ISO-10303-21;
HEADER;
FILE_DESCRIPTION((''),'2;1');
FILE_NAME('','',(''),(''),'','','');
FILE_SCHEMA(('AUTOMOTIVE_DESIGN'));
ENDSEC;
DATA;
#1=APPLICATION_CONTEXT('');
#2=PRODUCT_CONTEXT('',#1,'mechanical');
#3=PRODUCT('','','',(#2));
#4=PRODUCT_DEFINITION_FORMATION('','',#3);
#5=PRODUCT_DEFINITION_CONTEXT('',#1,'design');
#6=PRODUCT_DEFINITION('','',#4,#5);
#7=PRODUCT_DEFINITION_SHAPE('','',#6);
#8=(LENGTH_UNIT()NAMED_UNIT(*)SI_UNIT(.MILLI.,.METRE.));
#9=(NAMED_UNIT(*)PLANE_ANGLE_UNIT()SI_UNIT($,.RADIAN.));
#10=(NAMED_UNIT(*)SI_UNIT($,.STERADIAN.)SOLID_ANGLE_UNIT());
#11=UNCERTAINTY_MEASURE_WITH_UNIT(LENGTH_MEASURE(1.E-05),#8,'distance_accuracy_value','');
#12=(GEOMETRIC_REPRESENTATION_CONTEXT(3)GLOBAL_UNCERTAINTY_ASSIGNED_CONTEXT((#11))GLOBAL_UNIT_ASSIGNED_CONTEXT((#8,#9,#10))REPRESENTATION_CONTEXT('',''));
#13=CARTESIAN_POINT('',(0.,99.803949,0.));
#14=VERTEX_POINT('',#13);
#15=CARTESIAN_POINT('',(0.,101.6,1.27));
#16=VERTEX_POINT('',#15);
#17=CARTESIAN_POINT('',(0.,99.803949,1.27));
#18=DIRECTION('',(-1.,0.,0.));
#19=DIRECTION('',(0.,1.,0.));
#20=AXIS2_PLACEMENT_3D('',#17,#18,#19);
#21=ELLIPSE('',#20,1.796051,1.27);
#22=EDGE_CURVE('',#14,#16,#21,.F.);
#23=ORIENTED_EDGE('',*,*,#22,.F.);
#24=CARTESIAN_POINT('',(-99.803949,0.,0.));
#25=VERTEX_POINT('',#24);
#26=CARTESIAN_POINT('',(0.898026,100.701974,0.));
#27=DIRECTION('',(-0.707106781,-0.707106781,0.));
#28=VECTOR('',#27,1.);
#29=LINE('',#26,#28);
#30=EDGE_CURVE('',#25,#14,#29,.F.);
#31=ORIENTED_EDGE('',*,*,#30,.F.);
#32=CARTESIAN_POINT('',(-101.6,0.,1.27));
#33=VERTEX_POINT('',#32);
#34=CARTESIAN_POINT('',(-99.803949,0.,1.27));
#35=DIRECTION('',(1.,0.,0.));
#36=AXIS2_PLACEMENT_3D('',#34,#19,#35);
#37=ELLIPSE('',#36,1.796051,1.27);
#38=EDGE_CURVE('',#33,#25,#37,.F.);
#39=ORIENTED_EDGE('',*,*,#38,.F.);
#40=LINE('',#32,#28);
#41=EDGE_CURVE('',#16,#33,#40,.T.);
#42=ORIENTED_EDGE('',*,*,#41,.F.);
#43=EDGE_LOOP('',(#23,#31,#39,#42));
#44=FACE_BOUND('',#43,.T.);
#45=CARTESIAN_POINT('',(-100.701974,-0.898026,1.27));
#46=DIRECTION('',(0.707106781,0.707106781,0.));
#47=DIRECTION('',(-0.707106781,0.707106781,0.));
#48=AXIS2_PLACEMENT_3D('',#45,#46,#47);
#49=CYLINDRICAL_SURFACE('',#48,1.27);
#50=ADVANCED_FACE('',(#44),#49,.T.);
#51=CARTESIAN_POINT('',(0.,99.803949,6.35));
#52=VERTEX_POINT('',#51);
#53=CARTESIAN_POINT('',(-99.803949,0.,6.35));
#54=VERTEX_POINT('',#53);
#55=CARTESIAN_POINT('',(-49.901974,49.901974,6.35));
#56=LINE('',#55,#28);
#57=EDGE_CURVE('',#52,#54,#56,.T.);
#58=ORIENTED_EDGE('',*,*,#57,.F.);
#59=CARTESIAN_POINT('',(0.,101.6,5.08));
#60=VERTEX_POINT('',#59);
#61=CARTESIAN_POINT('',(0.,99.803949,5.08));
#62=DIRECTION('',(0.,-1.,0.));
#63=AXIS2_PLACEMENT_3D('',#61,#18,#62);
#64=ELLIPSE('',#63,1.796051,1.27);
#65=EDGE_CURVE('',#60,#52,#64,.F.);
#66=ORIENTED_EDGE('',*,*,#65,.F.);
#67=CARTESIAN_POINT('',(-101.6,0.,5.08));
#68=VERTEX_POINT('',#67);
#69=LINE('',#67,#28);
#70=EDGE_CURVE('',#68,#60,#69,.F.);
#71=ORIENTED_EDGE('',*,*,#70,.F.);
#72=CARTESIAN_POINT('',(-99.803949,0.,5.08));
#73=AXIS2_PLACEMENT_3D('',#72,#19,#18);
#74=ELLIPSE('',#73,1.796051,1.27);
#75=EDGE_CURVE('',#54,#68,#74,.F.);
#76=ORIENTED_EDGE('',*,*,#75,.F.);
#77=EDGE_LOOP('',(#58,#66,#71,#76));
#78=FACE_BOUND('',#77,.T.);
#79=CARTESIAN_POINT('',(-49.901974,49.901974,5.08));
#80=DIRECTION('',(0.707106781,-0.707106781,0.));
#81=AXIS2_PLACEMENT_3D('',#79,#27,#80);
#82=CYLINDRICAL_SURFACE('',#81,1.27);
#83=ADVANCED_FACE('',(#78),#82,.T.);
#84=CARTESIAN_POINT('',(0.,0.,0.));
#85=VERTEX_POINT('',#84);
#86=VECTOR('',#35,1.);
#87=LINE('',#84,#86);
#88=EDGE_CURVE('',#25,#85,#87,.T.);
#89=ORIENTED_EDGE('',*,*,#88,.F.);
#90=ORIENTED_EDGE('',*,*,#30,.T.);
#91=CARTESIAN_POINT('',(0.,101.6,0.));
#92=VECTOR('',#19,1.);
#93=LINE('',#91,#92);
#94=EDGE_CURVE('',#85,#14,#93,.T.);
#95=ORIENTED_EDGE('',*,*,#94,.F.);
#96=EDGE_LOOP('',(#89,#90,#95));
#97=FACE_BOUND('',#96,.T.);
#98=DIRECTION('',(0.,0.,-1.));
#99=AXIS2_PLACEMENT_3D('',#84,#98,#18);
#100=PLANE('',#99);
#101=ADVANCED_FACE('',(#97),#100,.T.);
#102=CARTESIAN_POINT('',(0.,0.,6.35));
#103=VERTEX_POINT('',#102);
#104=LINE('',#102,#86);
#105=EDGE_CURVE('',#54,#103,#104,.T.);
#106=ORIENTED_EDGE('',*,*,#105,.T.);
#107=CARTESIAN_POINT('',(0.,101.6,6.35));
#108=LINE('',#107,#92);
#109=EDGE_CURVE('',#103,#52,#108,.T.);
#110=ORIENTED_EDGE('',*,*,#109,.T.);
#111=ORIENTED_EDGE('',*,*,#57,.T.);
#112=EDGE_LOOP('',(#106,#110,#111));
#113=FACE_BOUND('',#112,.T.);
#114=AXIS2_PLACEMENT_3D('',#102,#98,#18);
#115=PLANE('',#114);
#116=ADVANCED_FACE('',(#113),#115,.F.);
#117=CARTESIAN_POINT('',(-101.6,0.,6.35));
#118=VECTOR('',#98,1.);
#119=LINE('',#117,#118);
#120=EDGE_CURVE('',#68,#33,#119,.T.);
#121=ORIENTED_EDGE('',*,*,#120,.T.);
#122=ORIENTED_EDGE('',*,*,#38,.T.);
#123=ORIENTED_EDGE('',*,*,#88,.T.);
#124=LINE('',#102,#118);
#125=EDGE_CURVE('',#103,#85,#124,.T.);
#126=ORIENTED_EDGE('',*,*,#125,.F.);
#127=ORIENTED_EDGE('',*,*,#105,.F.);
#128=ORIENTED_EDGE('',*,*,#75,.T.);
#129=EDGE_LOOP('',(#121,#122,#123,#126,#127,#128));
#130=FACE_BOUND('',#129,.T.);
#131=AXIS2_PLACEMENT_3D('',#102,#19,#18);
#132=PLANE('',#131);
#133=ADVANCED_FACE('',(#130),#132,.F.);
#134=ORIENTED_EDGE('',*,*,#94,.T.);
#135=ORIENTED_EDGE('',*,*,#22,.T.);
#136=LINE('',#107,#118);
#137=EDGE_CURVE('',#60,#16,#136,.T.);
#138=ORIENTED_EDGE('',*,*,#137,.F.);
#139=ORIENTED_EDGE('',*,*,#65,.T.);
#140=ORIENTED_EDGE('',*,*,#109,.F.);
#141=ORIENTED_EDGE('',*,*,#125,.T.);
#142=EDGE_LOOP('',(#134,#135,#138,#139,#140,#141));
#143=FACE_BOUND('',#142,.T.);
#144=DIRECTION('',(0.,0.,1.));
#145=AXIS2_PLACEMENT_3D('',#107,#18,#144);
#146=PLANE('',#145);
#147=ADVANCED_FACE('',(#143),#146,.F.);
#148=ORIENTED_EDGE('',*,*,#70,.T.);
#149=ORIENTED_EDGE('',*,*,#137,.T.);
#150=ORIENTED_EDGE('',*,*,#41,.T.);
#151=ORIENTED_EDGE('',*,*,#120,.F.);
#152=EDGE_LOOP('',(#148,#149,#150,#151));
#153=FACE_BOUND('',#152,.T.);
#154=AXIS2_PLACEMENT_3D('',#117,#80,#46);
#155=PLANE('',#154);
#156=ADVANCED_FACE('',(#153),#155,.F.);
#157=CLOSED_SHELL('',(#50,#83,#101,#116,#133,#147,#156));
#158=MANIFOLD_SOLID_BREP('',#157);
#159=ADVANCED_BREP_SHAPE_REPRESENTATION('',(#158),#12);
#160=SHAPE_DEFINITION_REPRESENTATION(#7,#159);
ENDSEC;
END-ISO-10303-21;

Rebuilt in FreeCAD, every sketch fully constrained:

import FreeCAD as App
import Part
import Sketcher

V = App.Vector
Q = App.Units.Quantity


def edges_at(feature, points):
    """Names of the edges that pass closest to the given points."""
    edges = feature.Shape.Edges
    near = lambda p: min(range(len(edges)), key=lambda i: edges[i].distToShape(Part.Vertex(*p))[0])
    return sorted({f"Edge{near(p) + 1}" for p in points})

doc = App.newDocument("Part")
body = doc.addObject("PartDesign::Body", "Body")

sketch1 = doc.addObject("Sketcher::SketchObject", "Sketch")
body.addObject(sketch1)
sketch1.AttachmentSupport = (doc.XY_Plane, [""])
sketch1.MapMode = "FlatFace"
sketch1.addGeometry([
    Part.LineSegment(V(-102, 0, 0), V(0, 0, 0)),
    Part.LineSegment(V(0, 0, 0), V(0, 102, 0)),
    Part.LineSegment(V(0, 102, 0), V(-102, 0, 0)),
], False)
sketch1.addConstraint([
    Sketcher.Constraint("Coincident", 0, 2, 1, 1),
    Sketcher.Constraint("Coincident", 1, 2, 2, 1),
    Sketcher.Constraint("Coincident", 2, 2, 0, 1),
    Sketcher.Constraint("Horizontal", 0),
    Sketcher.Constraint("Vertical", 1),
    Sketcher.Constraint("Coincident", 0, 2, -1, 1),
    Sketcher.Constraint("Equal", 0, 1),
    Sketcher.Constraint("DistanceX", 0, 1, 0, 2, Q("4 in")),
])
pad1 = doc.addObject("PartDesign::Pad", "Pad")
body.addObject(pad1)
pad1.Profile = sketch1
pad1.Length = Q("0.25 in")
doc.recompute()

fillet = doc.addObject("PartDesign::Fillet", "Fillet")
body.addObject(fillet)
fillet.Base = (pad1, edges_at(pad1, [(-50.8, 50.8, 6.35)]))
fillet.Radius = Q("0.05 in")
doc.recompute()

fillet2 = doc.addObject("PartDesign::Fillet", "Fillet001")
body.addObject(fillet2)
fillet2.Base = (fillet, edges_at(fillet, [(-50.8, 50.8, 0)]))
fillet2.Radius = Q("0.05 in")

doc.recompute()
